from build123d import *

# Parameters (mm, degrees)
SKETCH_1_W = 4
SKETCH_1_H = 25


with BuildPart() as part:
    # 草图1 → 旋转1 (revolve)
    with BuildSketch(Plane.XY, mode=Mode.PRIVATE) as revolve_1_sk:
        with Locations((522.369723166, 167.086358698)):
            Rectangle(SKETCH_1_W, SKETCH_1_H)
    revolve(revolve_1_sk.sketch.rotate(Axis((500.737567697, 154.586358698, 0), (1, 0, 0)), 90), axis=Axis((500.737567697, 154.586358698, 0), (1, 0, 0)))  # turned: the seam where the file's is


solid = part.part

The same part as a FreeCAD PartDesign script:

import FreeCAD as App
import Part
import Sketcher

V = App.Vector
Q = App.Units.Quantity


def add_polygon(sketch, points):
    """Adds a closed chain of lines whose ends are joined by coincident constraints."""
    first, n = sketch.GeometryCount, len(points)
    for a, b in zip(points, points[1:] + points[:1]):
        sketch.addGeometry(Part.LineSegment(App.Vector(*a, 0), App.Vector(*b, 0)), False)
    for i in range(n):
        sketch.addConstraint(Sketcher.Constraint("Coincident", first + i, 2, first + (i + 1) % n, 1))

doc = App.newDocument("Part")
body = doc.addObject("PartDesign::Body", "Body")

sketch1 = body.newObject("Sketcher::SketchObject", "Sketch")
sketch1.AttachmentSupport = (doc.getObject("XY_Plane"), [""])
sketch1.MapMode = "FlatFace"
add_polygon(sketch1, [(520.4, 179.6), (520.4, 154.6), (524.4, 154.6), (524.4, 179.6)])
sketch1.addGeometry(Part.LineSegment(V(520.4, 154.6, 0), V(524.4, 154.6, 0)), True)
sketch1.addConstraint([
    Sketcher.Constraint("Vertical", 0),
    Sketcher.Constraint("Horizontal", 1),
    Sketcher.Constraint("Vertical", 2),
    Sketcher.Constraint("Horizontal", 3),
    Sketcher.Constraint("Horizontal", 4),
    Sketcher.Constraint("Coincident", 4, 1, 0, 2),
    Sketcher.Constraint("Vertical", 2, 2, 4, 2),
    Sketcher.Constraint("DistanceX", 1, 1, 1, 2, Q("4 mm")),
    Sketcher.Constraint("DistanceY", 0, 2, 0, 1, Q("25 mm")),
    Sketcher.Constraint("DistanceY", -1, 1, 0, 2, Q("154.586359 mm")),
    Sketcher.Constraint("DistanceX", -1, 1, 0, 2, Q("520.369723 mm")),
])
revolution = body.newObject("PartDesign::Revolution", "Revolution")
revolution.Profile = sketch1
revolution.ReferenceAxis = (sketch1, ["Axis0"])
revolution.Angle = 360

doc.recompute()
